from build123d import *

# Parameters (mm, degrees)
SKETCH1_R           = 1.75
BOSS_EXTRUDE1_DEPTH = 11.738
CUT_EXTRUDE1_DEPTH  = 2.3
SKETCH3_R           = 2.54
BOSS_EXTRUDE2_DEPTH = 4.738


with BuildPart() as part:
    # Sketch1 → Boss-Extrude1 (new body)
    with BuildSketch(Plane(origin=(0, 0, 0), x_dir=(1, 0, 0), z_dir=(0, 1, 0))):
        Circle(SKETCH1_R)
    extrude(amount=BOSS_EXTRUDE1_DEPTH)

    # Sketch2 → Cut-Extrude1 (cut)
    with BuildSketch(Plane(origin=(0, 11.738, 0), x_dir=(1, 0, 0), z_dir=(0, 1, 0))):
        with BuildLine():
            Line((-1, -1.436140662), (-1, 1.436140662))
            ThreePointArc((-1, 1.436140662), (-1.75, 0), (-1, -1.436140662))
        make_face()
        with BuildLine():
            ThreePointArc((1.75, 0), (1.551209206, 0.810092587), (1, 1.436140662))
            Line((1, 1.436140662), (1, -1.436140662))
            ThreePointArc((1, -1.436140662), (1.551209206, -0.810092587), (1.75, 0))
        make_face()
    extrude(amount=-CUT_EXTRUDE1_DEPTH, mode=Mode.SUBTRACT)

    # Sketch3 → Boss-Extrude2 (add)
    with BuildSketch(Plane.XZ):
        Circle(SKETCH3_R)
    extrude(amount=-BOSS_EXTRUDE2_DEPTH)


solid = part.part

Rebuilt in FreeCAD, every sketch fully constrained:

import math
import FreeCAD as App
import Part
import Sketcher
from FreeCAD import Vector
Q = App.Units.Quantity

doc = App.newDocument("Part")
body = doc.addObject("PartDesign::Body", "Body")

# Sketch on XZ plane
sketch1 = body.newObject("Sketcher::SketchObject", "Sketch")
sketch1.AttachmentSupport = (doc.getObject("XZ_Plane"), [""])
sketch1.MapMode = "FlatFace"
sketch1.addGeometry(Part.Circle(Vector(0, 0, 0), Vector(0, 0, 1), 1.8), False)
sketch1.addConstraint([
    Sketcher.Constraint("Coincident", 0, 3, -1, 1),
    Sketcher.Constraint("Diameter", 0, Q("3.5 mm")),
])
pad1 = body.newObject("PartDesign::Pad", "Pad")
pad1.Profile = sketch1
pad1.Length = 11.738
pad1.Reversed = True

# Sketch on XZ plane
sketch2 = body.newObject("Sketcher::SketchObject", "Sketch001")
sketch2.AttachmentSupport = (doc.getObject("XZ_Plane"), [""])
sketch2.MapMode = "FlatFace"
sketch2.AttachmentOffset = App.Placement(Vector(0, 0, -11.738), App.Rotation())
sketch2.addGeometry([
    Part.LineSegment(Vector(-1, 1.4, 0), Vector(-1, -1.4, 0)),  # 0
    Part.ArcOfCircle(Part.Circle(Vector(0, 0, 0), Vector(0, 0, 1), 1.8), math.radians(125), math.radians(235)),  # 1
    Part.ArcOfCircle(Part.Circle(Vector(0, 0, 0), Vector(0, 0, 1), 1.8), math.radians(-55), math.radians(0)),  # 2
    Part.LineSegment(Vector(1, -1.4, 0), Vector(1, 1.4, 0)),  # 3
    Part.ArcOfCircle(Part.Circle(Vector(0, 0, 0), Vector(0, 0, 1), 1.8), math.radians(0), math.radians(55)),  # 4
], False)
sketch2.addConstraint([
    Sketcher.Constraint("Coincident", 0, 1, 1, 1),
    Sketcher.Constraint("Coincident", 1, 2, 0, 2),
    Sketcher.Constraint("Coincident", 2, 1, 3, 1),
    Sketcher.Constraint("Coincident", 3, 2, 4, 2),
    Sketcher.Constraint("Tangent", 4, 1, 2, 2),
    Sketcher.Constraint("Vertical", 0),
    Sketcher.Constraint("Vertical", 3),
    Sketcher.Constraint("Coincident", 1, 3, -1, 1),
    Sketcher.Constraint("Coincident", 2, 3, -1, 1),
    Sketcher.Constraint("Equal", 1, 2),
    Sketcher.Constraint("Equal", 2, 4),
    Sketcher.Constraint("PointOnObject", 4, 1, -1),
    Sketcher.Constraint("Horizontal", 1, 2, 2, 1),
    Sketcher.Constraint("Radius", 1, Q("1.75 mm")),
    Sketcher.Constraint("DistanceX", 0, 1, -1, 1, Q("1 mm")),
])
pocket1 = body.newObject("PartDesign::Pocket", "Pocket")
pocket1.Profile = sketch2
pocket1.Length = 2.3
pocket1.Reversed = True

# Sketch on XZ plane
sketch3 = body.newObject("Sketcher::SketchObject", "Sketch002")
sketch3.AttachmentSupport = (doc.getObject("XZ_Plane"), [""])
sketch3.MapMode = "FlatFace"
sketch3.addGeometry(Part.Circle(Vector(0, 0, 0), Vector(0, 0, 1), 2.5), False)
sketch3.addConstraint([
    Sketcher.Constraint("Coincident", 0, 3, -1, 1),
    Sketcher.Constraint("Diameter", 0, Q("5.08 mm")),
])
pad2 = body.newObject("PartDesign::Pad", "Pad001")
pad2.Profile = sketch3
pad2.Length = 4.738
pad2.Reversed = True

doc.recompute()
